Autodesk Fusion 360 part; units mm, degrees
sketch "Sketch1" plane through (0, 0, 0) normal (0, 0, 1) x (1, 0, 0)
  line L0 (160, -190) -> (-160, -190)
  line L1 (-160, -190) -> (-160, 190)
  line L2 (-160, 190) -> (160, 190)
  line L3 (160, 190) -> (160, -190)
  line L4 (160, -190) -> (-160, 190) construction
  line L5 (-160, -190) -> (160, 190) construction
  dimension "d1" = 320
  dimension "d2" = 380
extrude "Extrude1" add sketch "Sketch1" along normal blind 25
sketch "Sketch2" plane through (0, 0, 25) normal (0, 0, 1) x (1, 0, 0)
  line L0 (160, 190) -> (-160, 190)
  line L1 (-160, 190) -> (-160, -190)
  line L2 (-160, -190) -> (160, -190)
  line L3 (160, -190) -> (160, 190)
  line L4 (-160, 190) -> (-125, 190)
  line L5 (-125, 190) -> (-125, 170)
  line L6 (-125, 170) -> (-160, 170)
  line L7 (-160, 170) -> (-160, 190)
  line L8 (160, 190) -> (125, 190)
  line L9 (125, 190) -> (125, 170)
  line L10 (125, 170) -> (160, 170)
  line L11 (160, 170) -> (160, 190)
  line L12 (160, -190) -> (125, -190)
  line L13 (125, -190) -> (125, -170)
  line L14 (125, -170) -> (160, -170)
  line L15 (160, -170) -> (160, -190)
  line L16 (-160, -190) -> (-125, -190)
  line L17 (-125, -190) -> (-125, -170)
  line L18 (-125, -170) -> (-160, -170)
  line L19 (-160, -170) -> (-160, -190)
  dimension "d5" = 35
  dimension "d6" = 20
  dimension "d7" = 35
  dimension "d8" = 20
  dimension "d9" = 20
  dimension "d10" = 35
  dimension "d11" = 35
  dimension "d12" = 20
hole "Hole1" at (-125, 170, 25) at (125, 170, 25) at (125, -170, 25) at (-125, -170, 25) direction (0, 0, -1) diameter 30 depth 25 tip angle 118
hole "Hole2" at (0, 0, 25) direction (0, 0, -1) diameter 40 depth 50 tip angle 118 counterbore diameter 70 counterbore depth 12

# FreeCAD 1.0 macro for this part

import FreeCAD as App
import Part
import Sketcher
Q = App.Units.Quantity


def add_polygon(sketch, points):
    """Adds a closed chain of lines whose ends are joined by coincident constraints."""
    first, n = sketch.GeometryCount, len(points)
    for a, b in zip(points, points[1:] + points[:1]):
        sketch.addGeometry(Part.LineSegment(App.Vector(*a, 0), App.Vector(*b, 0)), False)
    for i in range(n):
        sketch.addConstraint(Sketcher.Constraint("Coincident", first + i, 2, first + (i + 1) % n, 1))

doc = App.newDocument("Part")
body = doc.addObject("PartDesign::Body", "Body")

# Sketch on XY plane
sketch1 = body.newObject("Sketcher::SketchObject", "Sketch")
sketch1.AttachmentSupport = (doc.getObject("XY_Plane"), [""])
sketch1.MapMode = "FlatFace"
add_polygon(sketch1, [(-160, -190), (160, -190), (160, 190), (-160, 190)])  # lines 0-3
sketch1.addConstraint([
    Sketcher.Constraint("Horizontal", 0),
    Sketcher.Constraint("Vertical", 1),
    Sketcher.Constraint("Horizontal", 2),
    Sketcher.Constraint("Vertical", 3),
    Sketcher.Constraint("Symmetric", 0, 2, 2, 2, -1, 1),
    Sketcher.Constraint("DistanceX", 0, 1, 0, 2, Q("320 mm")),
    Sketcher.Constraint("DistanceY", 1, 1, 1, 2, Q("380 mm")),
])
pad1 = body.newObject("PartDesign::Pad", "Pad")
pad1.Profile = sketch1
pad1.Length = 25

# Sketch on XY plane
sketch2 = body.newObject("Sketcher::SketchObject", "Sketch001")
sketch2.AttachmentSupport = (doc.getObject("XY_Plane"), [""])
sketch2.MapMode = "FlatFace"
sketch2.AttachmentOffset = App.Placement(App.Vector(0, 0, 25), App.Rotation())
sketch2.addGeometry([
    Part.Circle(App.Vector(-125, 170, 0), App.Vector(0, 0, 1), 15),
    Part.Circle(App.Vector(125, 170, 0), App.Vector(0, 0, 1), 15),
    Part.Circle(App.Vector(125, -170, 0), App.Vector(0, 0, 1), 15),
    Part.Circle(App.Vector(-125, -170, 0), App.Vector(0, 0, 1), 15),
], False)
sketch2.addConstraint([
    Sketcher.Constraint("Equal", 0, 1),
    Sketcher.Constraint("Equal", 1, 2),
    Sketcher.Constraint("Equal", 2, 3),
    Sketcher.Constraint("Symmetric", 0, 3, 2, 3, -1, 1),
    Sketcher.Constraint("Symmetric", 1, 3, 3, 3, -1, 1),
    Sketcher.Constraint("Symmetric", 0, 3, 1, 3, -2),
    Sketcher.Constraint("Diameter", 0, Q("30 mm")),
    Sketcher.Constraint("DistanceX", 0, 3, -1, 1, Q("125 mm")),
    Sketcher.Constraint("DistanceY", -1, 1, 0, 3, Q("170 mm")),
])
doc.recompute()
hole = body.newObject("PartDesign::Hole", "Hole")
hole.Profile = sketch2
hole.ThreadType = "None"
hole.Diameter = 30
hole.DepthType = "Dimension"
hole.Depth = 25
hole.DrillPoint = "Angled"
hole.DrillPointAngle = 118

# Sketch on XY plane
sketch3 = body.newObject("Sketcher::SketchObject", "Sketch002")
sketch3.AttachmentSupport = (doc.getObject("XY_Plane"), [""])
sketch3.MapMode = "FlatFace"
sketch3.AttachmentOffset = App.Placement(App.Vector(0, 0, 25), App.Rotation())
sketch3.addGeometry(Part.Circle(App.Vector(0, 0, 0), App.Vector(0, 0, 1), 20), False)
sketch3.addConstraint([
    Sketcher.Constraint("Coincident", 0, 3, -1, 1),
    Sketcher.Constraint("Diameter", 0, Q("40 mm")),
])
doc.recompute()
hole2 = body.newObject("PartDesign::Hole", "Hole001")
hole2.Profile = sketch3
hole2.ThreadType = "None"
hole2.Diameter = 40
hole2.DepthType = "Dimension"
hole2.Depth = 50
hole2.DrillPoint = "Angled"
hole2.DrillPointAngle = 118
hole2.HoleCutType = "Counterbore"
hole2.HoleCutDiameter = 70
hole2.HoleCutDepth = 12

doc.recompute()
